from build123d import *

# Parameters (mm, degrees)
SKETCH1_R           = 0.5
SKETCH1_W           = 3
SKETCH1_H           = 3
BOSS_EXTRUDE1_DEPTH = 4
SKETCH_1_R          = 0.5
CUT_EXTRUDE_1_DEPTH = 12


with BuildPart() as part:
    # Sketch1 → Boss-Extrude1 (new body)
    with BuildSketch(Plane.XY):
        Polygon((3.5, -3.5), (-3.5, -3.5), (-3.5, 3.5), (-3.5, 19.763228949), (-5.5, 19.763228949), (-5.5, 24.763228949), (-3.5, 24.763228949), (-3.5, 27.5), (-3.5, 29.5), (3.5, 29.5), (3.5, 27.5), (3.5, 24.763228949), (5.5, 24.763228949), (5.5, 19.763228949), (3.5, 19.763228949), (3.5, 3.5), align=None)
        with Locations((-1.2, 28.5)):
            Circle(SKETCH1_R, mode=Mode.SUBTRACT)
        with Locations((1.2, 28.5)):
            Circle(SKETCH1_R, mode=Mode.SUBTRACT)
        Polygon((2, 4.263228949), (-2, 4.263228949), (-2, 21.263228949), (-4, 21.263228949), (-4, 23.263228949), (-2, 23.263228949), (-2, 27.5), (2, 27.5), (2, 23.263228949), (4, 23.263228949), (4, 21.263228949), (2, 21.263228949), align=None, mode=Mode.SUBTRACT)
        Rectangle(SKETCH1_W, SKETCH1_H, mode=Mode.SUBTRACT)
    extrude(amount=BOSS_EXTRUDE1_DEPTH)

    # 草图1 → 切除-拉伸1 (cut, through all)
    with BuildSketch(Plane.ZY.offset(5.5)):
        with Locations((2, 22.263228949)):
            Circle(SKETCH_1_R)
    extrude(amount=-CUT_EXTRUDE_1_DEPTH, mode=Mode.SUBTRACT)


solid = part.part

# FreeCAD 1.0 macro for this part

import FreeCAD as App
import Part
import Sketcher

doc = App.newDocument("Part")
params = doc.addObject("Spreadsheet::Sheet", "Params")
for row, (alias, value) in enumerate([
    ("sketch1_diameter", "1 mm"),
    ("sketch1_width", "7 mm"),
    ("sketch1_width2", "2 mm"),
    ("sketch1_width3", "3 mm"),
    ("sketch1_width4", "4 mm"),
    ("pad1_length", "4 mm"),
    ("sketch2_diameter", "1 mm"),
], start=1):
    params.set(f"A{row}", alias)
    params.set(f"B{row}", "=" + value)
    params.setAlias(f"B{row}", alias)

body = doc.addObject("PartDesign::Body", "Body")

# Sketch on XY plane
sketch1 = doc.addObject("Sketcher::SketchObject", "Sketch")
body.addObject(sketch1)
sketch1.AttachmentSupport = (doc.XY_Plane, [""])
sketch1.MapMode = "FlatFace"
sketch1.addGeometry([
    Part.LineSegment(App.Vector(-3.5, -3.5, 0), App.Vector(3.5, -3.5, 0)),  # 0
    Part.LineSegment(App.Vector(3.5, -3.5, 0), App.Vector(3.5, 19.8, 0)),  # 1
    Part.LineSegment(App.Vector(3.5, 19.8, 0), App.Vector(5.5, 19.8, 0)),  # 2
    Part.LineSegment(App.Vector(5.5, 19.8, 0), App.Vector(5.5, 24.8, 0)),  # 3
    Part.LineSegment(App.Vector(5.5, 24.8, 0), App.Vector(3.5, 24.8, 0)),  # 4
    Part.LineSegment(App.Vector(3.5, 24.8, 0), App.Vector(3.5, 29.5, 0)),  # 5
    Part.LineSegment(App.Vector(3.5, 29.5, 0), App.Vector(-3.5, 29.5, 0)),  # 6
    Part.LineSegment(App.Vector(-3.5, 29.5, 0), App.Vector(-3.5, 24.8, 0)),  # 7
    Part.LineSegment(App.Vector(-3.5, 24.8, 0), App.Vector(-5.5, 24.8, 0)),  # 8
    Part.LineSegment(App.Vector(-5.5, 24.8, 0), App.Vector(-5.5, 19.8, 0)),  # 9
    Part.LineSegment(App.Vector(-5.5, 19.8, 0), App.Vector(-3.5, 19.8, 0)),  # 10
    Part.LineSegment(App.Vector(-3.5, 19.8, 0), App.Vector(-3.5, -3.5, 0)),  # 11
    Part.LineSegment(App.Vector(-1.5, -1.5, 0), App.Vector(-1.5, 1.5, 0)),  # 12
    Part.LineSegment(App.Vector(-1.5, 1.5, 0), App.Vector(1.5, 1.5, 0)),  # 13
    Part.LineSegment(App.Vector(1.5, 1.5, 0), App.Vector(1.5, -1.5, 0)),  # 14
    Part.LineSegment(App.Vector(1.5, -1.5, 0), App.Vector(-1.5, -1.5, 0)),  # 15
    Part.Circle(App.Vector(1.2, 28.5, 0), App.Vector(0, 0, 1), 0.5),  # 16
    Part.LineSegment(App.Vector(2, 4.3, 0), App.Vector(-2, 4.3, 0)),  # 17
    Part.LineSegment(App.Vector(-2, 4.3, 0), App.Vector(-2, 21.3, 0)),  # 18
    Part.LineSegment(App.Vector(-2, 21.3, 0), App.Vector(-4, 21.3, 0)),  # 19
    Part.LineSegment(App.Vector(-4, 21.3, 0), App.Vector(-4, 23.3, 0)),  # 20
    Part.LineSegment(App.Vector(-4, 23.3, 0), App.Vector(-2, 23.3, 0)),  # 21
    Part.LineSegment(App.Vector(-2, 23.3, 0), App.Vector(-2, 27.5, 0)),  # 22
    Part.LineSegment(App.Vector(-2, 27.5, 0), App.Vector(2, 27.5, 0)),  # 23
    Part.LineSegment(App.Vector(2, 27.5, 0), App.Vector(2, 23.3, 0)),  # 24
    Part.LineSegment(App.Vector(2, 23.3, 0), App.Vector(4, 23.3, 0)),  # 25
    Part.LineSegment(App.Vector(4, 23.3, 0), App.Vector(4, 21.3, 0)),  # 26
    Part.LineSegment(App.Vector(4, 21.3, 0), App.Vector(2, 21.3, 0)),  # 27
    Part.LineSegment(App.Vector(2, 21.3, 0), App.Vector(2, 4.3, 0)),  # 28
    Part.Circle(App.Vector(-1.2, 28.5, 0), App.Vector(0, 0, 1), 0.5),  # 29
], False)
sketch1.addConstraint([
    Sketcher.Constraint("Coincident", 0, 2, 1, 1),
    Sketcher.Constraint("Coincident", 1, 2, 2, 1),
    Sketcher.Constraint("Coincident", 2, 2, 3, 1),
    Sketcher.Constraint("Coincident", 3, 2, 4, 1),
    Sketcher.Constraint("Coincident", 4, 2, 5, 1),
    Sketcher.Constraint("Coincident", 5, 2, 6, 1),
    Sketcher.Constraint("Coincident", 6, 2, 7, 1),
    Sketcher.Constraint("Coincident", 7, 2, 8, 1),
    Sketcher.Constraint("Coincident", 8, 2, 9, 1),
    Sketcher.Constraint("Coincident", 9, 2, 10, 1),
    Sketcher.Constraint("Coincident", 10, 2, 11, 1),
    Sketcher.Constraint("Coincident", 11, 2, 0, 1),
    Sketcher.Constraint("Coincident", 12, 2, 13, 1),
    Sketcher.Constraint("Coincident", 13, 2, 14, 1),
    Sketcher.Constraint("Coincident", 14, 2, 15, 1),
    Sketcher.Constraint("Coincident", 15, 2, 12, 1),
    Sketcher.Constraint("Coincident", 17, 2, 18, 1),
    Sketcher.Constraint("Coincident", 18, 2, 19, 1),
    Sketcher.Constraint("Coincident", 19, 2, 20, 1),
    Sketcher.Constraint("Coincident", 20, 2, 21, 1),
    Sketcher.Constraint("Coincident", 21, 2, 22, 1),
    Sketcher.Constraint("Coincident", 22, 2, 23, 1),
    Sketcher.Constraint("Coincident", 23, 2, 24, 1),
    Sketcher.Constraint("Coincident", 24, 2, 25, 1),
    Sketcher.Constraint("Coincident", 25, 2, 26, 1),
    Sketcher.Constraint("Coincident", 26, 2, 27, 1),
    Sketcher.Constraint("Coincident", 27, 2, 28, 1),
    Sketcher.Constraint("Coincident", 28, 2, 17, 1),
    Sketcher.Constraint("Horizontal", 0),
    Sketcher.Constraint("Vertical", 1),
    Sketcher.Constraint("Horizontal", 2),
    Sketcher.Constraint("Vertical", 3),
    Sketcher.Constraint("Horizontal", 4),
    Sketcher.Constraint("Vertical", 5),
    Sketcher.Constraint("Horizontal", 6),
    Sketcher.Constraint("Vertical", 7),
    Sketcher.Constraint("Horizontal", 8),
    Sketcher.Constraint("Vertical", 9),
    Sketcher.Constraint("Horizontal", 10),
    Sketcher.Constraint("Vertical", 11),
    Sketcher.Constraint("Vertical", 12),
    Sketcher.Constraint("Horizontal", 13),
    Sketcher.Constraint("Vertical", 14),
    Sketcher.Constraint("Horizontal", 15),
    Sketcher.Constraint("Horizontal", 17),
    Sketcher.Constraint("Vertical", 18),
    Sketcher.Constraint("Horizontal", 19),
    Sketcher.Constraint("Vertical", 20),
    Sketcher.Constraint("Horizontal", 21),
    Sketcher.Constraint("Vertical", 22),
    Sketcher.Constraint("Horizontal", 23),
    Sketcher.Constraint("Vertical", 24),
    Sketcher.Constraint("Horizontal", 25),
    Sketcher.Constraint("Vertical", 26),
    Sketcher.Constraint("Horizontal", 27),
    Sketcher.Constraint("Vertical", 28),
    Sketcher.Constraint("Equal", 16, 29),
    Sketcher.Constraint("Symmetric", 12, 2, 14, 2, -1, 1),
    Sketcher.Constraint("Symmetric", 16, 3, 29, 3, -2),
    Sketcher.Constraint("Symmetric", 4, 2, 7, 2, -2),
    Sketcher.Constraint("Symmetric", 2, 2, 9, 2, -2),
    Sketcher.Constraint("Symmetric", 21, 2, 24, 2, -2),
    Sketcher.Constraint("Symmetric", 19, 2, 26, 2, -2),
    Sketcher.Constraint("Vertical", 1, 2, 4, 2),
    Sketcher.Constraint("Vertical", 7, 2, 10, 2),
    Sketcher.Constraint("Vertical", 18, 2, 21, 2),
    Sketcher.Constraint("Vertical", 24, 2, 27, 2),
    Sketcher.Constraint("Equal", 10, 19),
    Sketcher.Constraint("Equal", 15, 12),
    Sketcher.Constraint("Equal", 27, 20),
    Sketcher.Constraint("Diameter", 16, 1.0),
    Sketcher.Constraint("DistanceX", 0, 1, 0, 2, 7.0),
    Sketcher.Constraint("DistanceX", 2, 1, 2, 2, 2.0),
    Sketcher.Constraint("DistanceX", 13, 1, 13, 2, 3.0),
    Sketcher.Constraint("DistanceX", 17, 2, 17, 1, 4.0),
    Sketcher.Constraint("DistanceY", 3, 1, 3, 2, 5.0),
    Sketcher.Constraint("DistanceY", 18, 1, 18, 2, 17.0),
    Sketcher.Constraint("DistanceY", 0, 2, 16, 3, 32.0),
    Sketcher.Constraint("DistanceY", 16, 3, 5, 2, 1.0),
    Sketcher.Constraint("DistanceY", 11, 2, 12, 2, 5.0),
    Sketcher.Constraint("DistanceY", 22, 2, 29, 3, 1.0),
    Sketcher.Constraint("DistanceX", -1, 1, 16, 3, 1.2),
    Sketcher.Constraint("DistanceY", 10, 2, 18, 2, 1.5),
    Sketcher.Constraint("DistanceY", 1, 1, 1, 2, 23.263229),
])
sketch1.setExpression("Constraints[70]", "Params.sketch1_diameter")
sketch1.setExpression("Constraints[71]", "Params.sketch1_width")
sketch1.setExpression("Constraints[72]", "Params.sketch1_width2")
sketch1.setExpression("Constraints[73]", "Params.sketch1_width3")
sketch1.setExpression("Constraints[74]", "Params.sketch1_width4")
pad1 = doc.addObject("PartDesign::Pad", "Pad")
body.addObject(pad1)
pad1.Profile = sketch1
pad1.setExpression("Length", "Params.pad1_length")

# Sketch on YZ plane
sketch2 = doc.addObject("Sketcher::SketchObject", "Sketch001")
body.addObject(sketch2)
sketch2.AttachmentSupport = (doc.YZ_Plane, [""])
sketch2.MapMode = "FlatFace"
sketch2.AttachmentOffset = App.Placement(App.Vector(0, 0, -5.5), App.Rotation())
sketch2.addGeometry(Part.Circle(App.Vector(22.3, 2, 0), App.Vector(0, 0, 1), 0.5), False)
sketch2.addConstraint([
    Sketcher.Constraint("Diameter", 0, 1.0),
    Sketcher.Constraint("DistanceY", -1, 1, 0, 3, 2.0),
    Sketcher.Constraint("DistanceX", -1, 1, 0, 3, 22.263229),
])
sketch2.setExpression("Constraints[0]", "Params.sketch2_diameter")
pocket1 = doc.addObject("PartDesign::Pocket", "Pocket")
body.addObject(pocket1)
pocket1.Profile = sketch2
pocket1.Type = "ThroughAll"
pocket1.Reversed = True

doc.recompute()
